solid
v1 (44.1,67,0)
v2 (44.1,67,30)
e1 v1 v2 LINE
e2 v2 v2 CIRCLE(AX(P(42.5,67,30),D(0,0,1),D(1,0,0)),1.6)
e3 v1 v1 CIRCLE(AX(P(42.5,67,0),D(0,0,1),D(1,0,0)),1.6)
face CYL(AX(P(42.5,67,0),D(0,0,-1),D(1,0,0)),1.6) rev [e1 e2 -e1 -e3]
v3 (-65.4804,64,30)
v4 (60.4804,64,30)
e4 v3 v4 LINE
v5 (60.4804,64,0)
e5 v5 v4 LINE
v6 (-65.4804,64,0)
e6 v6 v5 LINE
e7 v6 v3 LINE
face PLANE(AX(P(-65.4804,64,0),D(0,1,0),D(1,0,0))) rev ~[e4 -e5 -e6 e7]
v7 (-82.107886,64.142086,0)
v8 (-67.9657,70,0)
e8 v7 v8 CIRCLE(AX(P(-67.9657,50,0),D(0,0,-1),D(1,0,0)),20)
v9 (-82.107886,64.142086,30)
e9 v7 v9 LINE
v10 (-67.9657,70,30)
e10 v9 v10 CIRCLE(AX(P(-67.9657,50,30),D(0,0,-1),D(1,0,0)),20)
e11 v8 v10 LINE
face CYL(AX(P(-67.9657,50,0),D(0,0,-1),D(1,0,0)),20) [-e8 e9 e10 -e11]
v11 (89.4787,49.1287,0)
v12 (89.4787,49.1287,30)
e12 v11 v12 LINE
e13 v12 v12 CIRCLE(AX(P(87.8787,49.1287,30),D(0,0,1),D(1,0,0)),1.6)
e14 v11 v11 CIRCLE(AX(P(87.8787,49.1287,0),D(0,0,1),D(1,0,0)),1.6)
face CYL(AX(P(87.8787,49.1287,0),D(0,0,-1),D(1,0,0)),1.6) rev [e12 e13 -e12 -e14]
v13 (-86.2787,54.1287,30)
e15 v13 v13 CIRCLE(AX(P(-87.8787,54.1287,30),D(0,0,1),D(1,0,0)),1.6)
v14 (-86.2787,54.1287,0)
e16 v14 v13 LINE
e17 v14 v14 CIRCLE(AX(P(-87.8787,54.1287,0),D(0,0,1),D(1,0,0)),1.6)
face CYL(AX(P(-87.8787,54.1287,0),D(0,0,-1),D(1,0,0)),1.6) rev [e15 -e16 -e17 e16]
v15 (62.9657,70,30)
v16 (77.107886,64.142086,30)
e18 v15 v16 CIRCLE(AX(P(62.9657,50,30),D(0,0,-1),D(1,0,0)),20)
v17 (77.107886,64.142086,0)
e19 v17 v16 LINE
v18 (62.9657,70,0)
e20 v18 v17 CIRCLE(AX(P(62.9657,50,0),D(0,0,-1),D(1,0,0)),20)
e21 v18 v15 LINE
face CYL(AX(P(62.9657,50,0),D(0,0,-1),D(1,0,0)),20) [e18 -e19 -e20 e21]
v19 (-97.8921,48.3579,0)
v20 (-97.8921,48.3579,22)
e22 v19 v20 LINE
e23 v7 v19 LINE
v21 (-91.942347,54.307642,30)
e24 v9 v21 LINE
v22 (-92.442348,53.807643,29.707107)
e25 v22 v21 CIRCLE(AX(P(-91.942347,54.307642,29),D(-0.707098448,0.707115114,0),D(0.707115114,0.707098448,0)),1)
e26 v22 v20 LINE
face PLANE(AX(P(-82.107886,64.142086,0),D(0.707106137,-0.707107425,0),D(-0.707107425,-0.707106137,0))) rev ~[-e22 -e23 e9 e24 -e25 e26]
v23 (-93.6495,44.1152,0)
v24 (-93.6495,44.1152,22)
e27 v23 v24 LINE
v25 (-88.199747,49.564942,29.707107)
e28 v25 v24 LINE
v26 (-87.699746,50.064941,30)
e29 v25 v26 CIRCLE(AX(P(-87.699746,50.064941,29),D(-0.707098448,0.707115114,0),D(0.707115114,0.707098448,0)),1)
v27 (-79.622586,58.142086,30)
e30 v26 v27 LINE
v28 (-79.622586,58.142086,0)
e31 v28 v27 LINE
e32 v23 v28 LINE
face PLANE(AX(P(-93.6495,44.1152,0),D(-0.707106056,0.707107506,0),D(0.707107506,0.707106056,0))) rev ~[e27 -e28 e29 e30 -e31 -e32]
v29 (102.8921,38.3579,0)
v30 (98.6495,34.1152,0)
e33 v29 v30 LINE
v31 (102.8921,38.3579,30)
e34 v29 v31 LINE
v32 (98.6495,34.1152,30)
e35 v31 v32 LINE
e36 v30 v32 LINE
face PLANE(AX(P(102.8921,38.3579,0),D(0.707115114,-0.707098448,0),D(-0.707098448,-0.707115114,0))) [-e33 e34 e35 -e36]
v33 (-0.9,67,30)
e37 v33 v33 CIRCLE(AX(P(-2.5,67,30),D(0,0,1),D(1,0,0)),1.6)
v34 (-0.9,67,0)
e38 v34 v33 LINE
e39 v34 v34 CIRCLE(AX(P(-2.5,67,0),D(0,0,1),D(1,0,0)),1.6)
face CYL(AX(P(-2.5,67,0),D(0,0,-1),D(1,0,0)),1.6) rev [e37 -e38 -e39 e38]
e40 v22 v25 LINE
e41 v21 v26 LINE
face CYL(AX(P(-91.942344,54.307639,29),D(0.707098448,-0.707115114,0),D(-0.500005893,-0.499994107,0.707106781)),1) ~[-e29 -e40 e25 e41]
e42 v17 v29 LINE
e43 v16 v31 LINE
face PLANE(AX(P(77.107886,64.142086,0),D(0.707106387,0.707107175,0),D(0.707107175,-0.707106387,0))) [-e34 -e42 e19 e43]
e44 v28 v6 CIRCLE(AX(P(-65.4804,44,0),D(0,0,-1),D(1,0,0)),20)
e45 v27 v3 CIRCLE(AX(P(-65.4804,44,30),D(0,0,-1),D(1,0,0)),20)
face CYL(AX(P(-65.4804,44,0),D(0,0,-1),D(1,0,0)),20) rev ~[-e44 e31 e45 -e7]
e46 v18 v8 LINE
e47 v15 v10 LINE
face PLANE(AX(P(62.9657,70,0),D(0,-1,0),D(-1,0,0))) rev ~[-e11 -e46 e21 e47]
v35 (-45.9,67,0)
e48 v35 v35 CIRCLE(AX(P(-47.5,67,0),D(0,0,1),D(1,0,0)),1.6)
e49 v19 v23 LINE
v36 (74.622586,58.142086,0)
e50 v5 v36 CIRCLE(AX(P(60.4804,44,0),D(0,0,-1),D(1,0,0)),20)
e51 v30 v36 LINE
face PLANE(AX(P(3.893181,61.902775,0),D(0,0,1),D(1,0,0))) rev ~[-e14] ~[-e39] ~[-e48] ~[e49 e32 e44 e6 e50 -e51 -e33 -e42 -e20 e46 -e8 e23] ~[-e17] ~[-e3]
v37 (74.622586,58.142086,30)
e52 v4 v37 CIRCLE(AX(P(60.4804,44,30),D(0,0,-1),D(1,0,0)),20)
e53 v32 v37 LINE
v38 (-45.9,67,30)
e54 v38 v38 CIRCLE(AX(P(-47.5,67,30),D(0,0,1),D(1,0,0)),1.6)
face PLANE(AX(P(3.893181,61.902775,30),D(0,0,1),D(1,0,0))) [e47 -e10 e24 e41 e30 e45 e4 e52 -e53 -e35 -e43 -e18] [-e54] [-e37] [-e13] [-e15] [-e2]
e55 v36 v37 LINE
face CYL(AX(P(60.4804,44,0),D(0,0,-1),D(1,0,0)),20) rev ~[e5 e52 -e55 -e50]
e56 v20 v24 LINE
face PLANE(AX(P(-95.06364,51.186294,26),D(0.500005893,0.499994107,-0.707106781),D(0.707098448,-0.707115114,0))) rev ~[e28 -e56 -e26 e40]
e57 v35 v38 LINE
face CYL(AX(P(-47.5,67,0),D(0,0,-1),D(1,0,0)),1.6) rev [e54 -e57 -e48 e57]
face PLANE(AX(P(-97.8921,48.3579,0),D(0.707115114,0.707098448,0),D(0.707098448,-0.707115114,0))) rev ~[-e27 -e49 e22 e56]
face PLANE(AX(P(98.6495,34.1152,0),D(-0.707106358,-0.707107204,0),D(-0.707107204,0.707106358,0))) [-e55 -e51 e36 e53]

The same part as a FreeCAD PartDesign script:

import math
import FreeCAD as App
import Part
import Sketcher

V = App.Vector
Q = App.Units.Quantity


def edges_at(feature, points):
    """Names of the edges that pass closest to the given points."""
    edges = feature.Shape.Edges
    near = lambda p: min(range(len(edges)), key=lambda i: edges[i].distToShape(Part.Vertex(*p))[0])
    return sorted({f"Edge{near(p) + 1}" for p in points})

doc = App.newDocument("Part")
body = doc.addObject("PartDesign::Body", "Body")

# Sketch on XY plane
sketch1 = doc.addObject("Sketcher::SketchObject", "Sketch")
body.addObject(sketch1)
sketch1.AttachmentSupport = (doc.XY_Plane, [""])
sketch1.MapMode = "FlatFace"
sketch1.addGeometry([
    Part.ArcOfCircle(Part.Circle(V(-65.4804, 44, 0), V(0, 0, 1), 20.00002), math.radians(90), math.radians(135.000203)),  # 0
    Part.LineSegment(V(-65.4804, 64, 0), V(60.4804, 64, 0)),  # 1
    Part.ArcOfCircle(Part.Circle(V(60.4804, 44, 0), V(0, 0, 1), 20), math.radians(44.999797), math.radians(90)),  # 2
    Part.LineSegment(V(74.6226, 58.1421, 0), V(98.6495, 34.1152, 0)),  # 3
    Part.LineSegment(V(98.6495, 34.1152, 0), V(102.8921, 38.3579, 0)),  # 4
    Part.LineSegment(V(102.8921, 38.3579, 0), V(77.1079, 64.1421, 0)),  # 5
    Part.ArcOfCircle(Part.Circle(V(62.9657, 50, 0), V(0, 0, 1), 20), math.radians(44.999797), math.radians(90)),  # 6
    Part.LineSegment(V(62.9657, 70, 0), V(-67.9657, 70, 0)),  # 7
    Part.ArcOfCircle(Part.Circle(V(-67.9657, 50, 0), V(0, 0, 1), 20.00002), math.radians(90), math.radians(135.000203)),  # 8
    Part.LineSegment(V(-82.1079, 64.1421, 0), V(-97.8921, 48.3579, 0)),  # 9
    Part.LineSegment(V(-97.8921, 48.3579, 0), V(-93.6495, 44.1152, 0)),  # 10
    Part.LineSegment(V(-93.6495, 44.1152, 0), V(-79.6226, 58.1421, 0)),  # 11
    Part.Circle(V(87.8787, 49.1287, 0), V(0, 0, 1), 1.6),  # 12
    Part.Circle(V(-87.8787, 54.1287, 0), V(0, 0, 1), 1.6),  # 13
    Part.Circle(V(-47.5, 67, 0), V(0, 0, 1), 1.6),  # 14
    Part.Circle(V(-2.5, 67, 0), V(0, 0, 1), 1.6),  # 15
    Part.Circle(V(42.5, 67, 0), V(0, 0, 1), 1.6),  # 16
], False)
sketch1.addConstraint([
    Sketcher.Constraint("Tangent", 0, 1, 1, 1),
    Sketcher.Constraint("Tangent", 1, 2, 2, 2),
    Sketcher.Constraint("Tangent", 2, 1, 3, 1),
    Sketcher.Constraint("Coincident", 3, 2, 4, 1),
    Sketcher.Constraint("Coincident", 4, 2, 5, 1),
    Sketcher.Constraint("Tangent", 5, 2, 6, 1),
    Sketcher.Constraint("Tangent", 6, 2, 7, 1),
    Sketcher.Constraint("Tangent", 7, 2, 8, 1),
    Sketcher.Constraint("Tangent", 8, 2, 9, 1),
    Sketcher.Constraint("Coincident", 9, 2, 10, 1),
    Sketcher.Constraint("Coincident", 10, 2, 11, 1),
    Sketcher.Constraint("Tangent", 11, 2, 0, 2),
    Sketcher.Constraint("Horizontal", 1),
    Sketcher.Constraint("Horizontal", 7),
    Sketcher.Constraint("Equal", 0, 2),
    Sketcher.Constraint("Equal", 2, 6),
    Sketcher.Constraint("Equal", 6, 8),
    Sketcher.Constraint("Equal", 12, 13),
    Sketcher.Constraint("Equal", 13, 14),
    Sketcher.Constraint("Equal", 14, 15),
    Sketcher.Constraint("Equal", 15, 16),
    Sketcher.Constraint("Perpendicular", 3, 4),
    Sketcher.Constraint("Perpendicular", 4, 5),
    Sketcher.Constraint("Perpendicular", 5, 9),
    Sketcher.Constraint("Perpendicular", 9, 10),
    Sketcher.Constraint("Perpendicular", 10, 11),
    Sketcher.Constraint("Horizontal", 14, 3, 15, 3),
    Sketcher.Constraint("Horizontal", 15, 3, 16, 3),
    Sketcher.Constraint("Horizontal", 5, 2, 8, 2),
    Sketcher.Constraint("Equal", 4, 10),
    Sketcher.Constraint("Radius", 0, Q("20 mm")),
    Sketcher.Constraint("Diameter", 12, Q("3.2 mm")),
    Sketcher.Constraint("Distance", 4, Q("6 mm")),
    Sketcher.Constraint("DistanceY", -1, 1, 0, 3, Q("44 mm")),
    Sketcher.Constraint("DistanceY", -1, 1, 6, 3, Q("50 mm")),
    Sketcher.Constraint("DistanceY", -1, 1, 14, 3, Q("67 mm")),
    Sketcher.Constraint("DistanceY", 12, 3, 13, 3, Q("5 mm")),
    Sketcher.Constraint("DistanceX", 14, 3, 15, 3, Q("45 mm")),
    Sketcher.Constraint("DistanceX", 15, 3, 16, 3, Q("45 mm")),
    Sketcher.Constraint("DistanceX", 14, 3, -1, 1, Q("47.5 mm")),
    Sketcher.Constraint("Distance", 11, Q("19.837 mm")),
    Sketcher.Constraint("DistanceX", 1, 1, 1, 2, Q("125.9608 mm")),
    Sketcher.Constraint("DistanceX", -1, 1, 4, 2, Q("102.892 mm")),
    Sketcher.Constraint("DistanceY", -1, 1, 4, 2, Q("38.358 mm")),
    Sketcher.Constraint("DistanceX", 6, 3, 12, 3, Q("24.913 mm")),
    Sketcher.Constraint("DistanceX", 13, 3, 8, 3, Q("19.913 mm")),
    Sketcher.Constraint("DistanceY", -1, 1, 12, 3, Q("49.1287 mm")),
])
pad1 = doc.addObject("PartDesign::Pad", "Pad")
body.addObject(pad1)
pad1.Profile = sketch1
pad1.Length = 30
doc.recompute()

chamfer = doc.addObject("PartDesign::Chamfer", "Chamfer")
body.addObject(chamfer)
chamfer.Base = (pad1, edges_at(pad1, [(-95.771, 46.236, 30)]))
chamfer.Size = 8
doc.recompute()

fillet = doc.addObject("PartDesign::Fillet", "Fillet")
body.addObject(fillet)
fillet.Base = (chamfer, edges_at(chamfer, [(-90.114, 51.893, 30)]))
fillet.Radius = 1

doc.recompute()
